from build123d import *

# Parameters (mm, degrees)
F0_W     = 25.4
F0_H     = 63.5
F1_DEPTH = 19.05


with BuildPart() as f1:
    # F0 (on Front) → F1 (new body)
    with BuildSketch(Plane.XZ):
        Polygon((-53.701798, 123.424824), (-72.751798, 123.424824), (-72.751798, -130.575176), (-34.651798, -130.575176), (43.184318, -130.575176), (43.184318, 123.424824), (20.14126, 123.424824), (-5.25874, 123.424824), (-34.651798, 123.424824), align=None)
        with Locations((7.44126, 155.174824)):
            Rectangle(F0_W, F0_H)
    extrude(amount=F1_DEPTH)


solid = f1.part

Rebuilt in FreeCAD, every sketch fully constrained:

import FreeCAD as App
import Part
import Sketcher
Q = App.Units.Quantity


def add_polygon(sketch, points):
    """Adds a closed chain of lines whose ends are joined by coincident constraints."""
    first, n = sketch.GeometryCount, len(points)
    for a, b in zip(points, points[1:] + points[:1]):
        sketch.addGeometry(Part.LineSegment(App.Vector(*a, 0), App.Vector(*b, 0)), False)
    for i in range(n):
        sketch.addConstraint(Sketcher.Constraint("Coincident", first + i, 2, first + (i + 1) % n, 1))

doc = App.newDocument("Part")
body = doc.addObject("PartDesign::Body", "Body")

sketch1 = doc.addObject("Sketcher::SketchObject", "Sketch")
body.addObject(sketch1)
sketch1.AttachmentSupport = (doc.XZ_Plane, [""])
sketch1.MapMode = "FlatFace"
add_polygon(sketch1, [(-73, 123), (-73, -131), (43, -131), (43, 123), (20, 123), (20, 187), (-5, 187), (-5, 123)])
sketch1.addConstraint([
    Sketcher.Constraint("Vertical", 0),
    Sketcher.Constraint("Horizontal", 1),
    Sketcher.Constraint("Vertical", 2),
    Sketcher.Constraint("Horizontal", 3),
    Sketcher.Constraint("Vertical", 4),
    Sketcher.Constraint("Horizontal", 5),
    Sketcher.Constraint("Vertical", 6),
    Sketcher.Constraint("Horizontal", 7),
    Sketcher.Constraint("Horizontal", 3, 2, 6, 2),
    Sketcher.Constraint("DistanceX", 5, 2, 5, 1, Q("1 in")),
    Sketcher.Constraint("DistanceY", 0, 2, 0, 1, Q("10 in")),
    Sketcher.Constraint("DistanceY", 4, 1, 4, 2, Q("2.5 in")),
    Sketcher.Constraint("DistanceX", 1, 1, 1, 2, Q("115.936116 mm")),
    Sketcher.Constraint("DistanceX", 3, 2, 3, 1, Q("23.043058 mm")),
    Sketcher.Constraint("DistanceX", -1, 1, 3, 2, Q("20.14126 mm")),
    Sketcher.Constraint("DistanceY", 0, 2, -1, 1, Q("130.575176 mm")),
])
pad1 = doc.addObject("PartDesign::Pad", "Pad")
body.addObject(pad1)
pad1.Profile = sketch1
pad1.Length = Q("0.75 in")

doc.recompute()
